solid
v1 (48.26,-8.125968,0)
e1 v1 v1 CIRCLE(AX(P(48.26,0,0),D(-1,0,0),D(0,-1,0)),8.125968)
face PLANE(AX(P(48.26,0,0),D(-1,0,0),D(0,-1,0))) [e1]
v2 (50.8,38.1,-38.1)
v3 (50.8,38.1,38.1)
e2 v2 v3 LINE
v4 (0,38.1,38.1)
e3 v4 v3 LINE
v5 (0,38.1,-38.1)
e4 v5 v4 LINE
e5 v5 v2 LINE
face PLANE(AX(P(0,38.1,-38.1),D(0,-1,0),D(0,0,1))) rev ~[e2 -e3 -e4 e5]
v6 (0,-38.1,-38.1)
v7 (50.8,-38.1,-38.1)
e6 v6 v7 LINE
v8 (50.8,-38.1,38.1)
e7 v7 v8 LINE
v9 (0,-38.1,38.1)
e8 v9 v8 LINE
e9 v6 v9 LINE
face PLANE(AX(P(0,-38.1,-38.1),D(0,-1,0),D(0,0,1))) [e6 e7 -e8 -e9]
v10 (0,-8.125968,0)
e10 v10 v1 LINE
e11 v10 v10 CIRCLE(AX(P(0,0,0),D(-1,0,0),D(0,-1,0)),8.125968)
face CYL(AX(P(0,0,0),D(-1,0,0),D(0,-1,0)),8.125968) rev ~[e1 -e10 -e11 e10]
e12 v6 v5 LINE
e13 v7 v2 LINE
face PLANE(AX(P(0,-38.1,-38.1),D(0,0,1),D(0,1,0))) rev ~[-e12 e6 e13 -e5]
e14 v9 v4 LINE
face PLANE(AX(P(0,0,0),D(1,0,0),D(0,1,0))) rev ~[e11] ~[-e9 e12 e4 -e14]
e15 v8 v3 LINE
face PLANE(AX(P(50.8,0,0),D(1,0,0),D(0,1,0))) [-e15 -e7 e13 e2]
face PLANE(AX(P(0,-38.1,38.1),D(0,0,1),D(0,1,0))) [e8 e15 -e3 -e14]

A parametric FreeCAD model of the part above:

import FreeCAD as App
import Part
import Sketcher

V = App.Vector
Q = App.Units.Quantity

doc = App.newDocument("Part")
body = doc.addObject("PartDesign::Body", "Body")

sketch1 = doc.addObject("Sketcher::SketchObject", "Sketch")
body.addObject(sketch1)
sketch1.AttachmentSupport = (doc.YZ_Plane, [""])
sketch1.MapMode = "FlatFace"
sketch1.addGeometry(Part.LineSegment(V(-38, 38, 0), V(-38, -38, 0)), False)
sketch1.addGeometry(Part.LineSegment(V(-38, -38, 0), V(38, -38, 0)), False)
sketch1.addGeometry(Part.LineSegment(V(38, -38, 0), V(38, 38, 0)), False)
sketch1.addGeometry(Part.LineSegment(V(38, 38, 0), V(-38, 38, 0)), False)
sketch1.addConstraint(Sketcher.Constraint("Coincident", 0, 2, 1, 1))
sketch1.addConstraint(Sketcher.Constraint("Coincident", 1, 2, 2, 1))
sketch1.addConstraint(Sketcher.Constraint("Coincident", 2, 2, 3, 1))
sketch1.addConstraint(Sketcher.Constraint("Coincident", 3, 2, 0, 1))
sketch1.addConstraint(Sketcher.Constraint("Vertical", 0))
sketch1.addConstraint(Sketcher.Constraint("Horizontal", 1))
sketch1.addConstraint(Sketcher.Constraint("Vertical", 2))
sketch1.addConstraint(Sketcher.Constraint("Horizontal", 3))
sketch1.addConstraint(Sketcher.Constraint("Symmetric", 0, 2, 2, 2, -1, 1))
sketch1.addConstraint(Sketcher.Constraint("Equal", 3, 0))
sketch1.addConstraint(Sketcher.Constraint("DistanceX", 1, 1, 1, 2, Q("3 in")))
pad1 = doc.addObject("PartDesign::Pad", "Pad")
body.addObject(pad1)
pad1.Profile = sketch1
pad1.Length = Q("2 in")

sketch2 = doc.addObject("Sketcher::SketchObject", "Sketch001")
body.addObject(sketch2)
sketch2.AttachmentSupport = (doc.YZ_Plane, [""])
sketch2.MapMode = "FlatFace"
sketch2.addGeometry(Part.Circle(V(0, 0, 0), V(0, 0, 1), 8), False)
sketch2.addConstraint(Sketcher.Constraint("Coincident", 0, 3, -1, 1))
sketch2.addConstraint(Sketcher.Constraint("Diameter", 0, 16.251936))
pocket1 = doc.addObject("PartDesign::Pocket", "Pocket")
body.addObject(pocket1)
pocket1.Profile = sketch2
pocket1.Length = Q("1.9 in")
pocket1.Reversed = True

doc.recompute()
